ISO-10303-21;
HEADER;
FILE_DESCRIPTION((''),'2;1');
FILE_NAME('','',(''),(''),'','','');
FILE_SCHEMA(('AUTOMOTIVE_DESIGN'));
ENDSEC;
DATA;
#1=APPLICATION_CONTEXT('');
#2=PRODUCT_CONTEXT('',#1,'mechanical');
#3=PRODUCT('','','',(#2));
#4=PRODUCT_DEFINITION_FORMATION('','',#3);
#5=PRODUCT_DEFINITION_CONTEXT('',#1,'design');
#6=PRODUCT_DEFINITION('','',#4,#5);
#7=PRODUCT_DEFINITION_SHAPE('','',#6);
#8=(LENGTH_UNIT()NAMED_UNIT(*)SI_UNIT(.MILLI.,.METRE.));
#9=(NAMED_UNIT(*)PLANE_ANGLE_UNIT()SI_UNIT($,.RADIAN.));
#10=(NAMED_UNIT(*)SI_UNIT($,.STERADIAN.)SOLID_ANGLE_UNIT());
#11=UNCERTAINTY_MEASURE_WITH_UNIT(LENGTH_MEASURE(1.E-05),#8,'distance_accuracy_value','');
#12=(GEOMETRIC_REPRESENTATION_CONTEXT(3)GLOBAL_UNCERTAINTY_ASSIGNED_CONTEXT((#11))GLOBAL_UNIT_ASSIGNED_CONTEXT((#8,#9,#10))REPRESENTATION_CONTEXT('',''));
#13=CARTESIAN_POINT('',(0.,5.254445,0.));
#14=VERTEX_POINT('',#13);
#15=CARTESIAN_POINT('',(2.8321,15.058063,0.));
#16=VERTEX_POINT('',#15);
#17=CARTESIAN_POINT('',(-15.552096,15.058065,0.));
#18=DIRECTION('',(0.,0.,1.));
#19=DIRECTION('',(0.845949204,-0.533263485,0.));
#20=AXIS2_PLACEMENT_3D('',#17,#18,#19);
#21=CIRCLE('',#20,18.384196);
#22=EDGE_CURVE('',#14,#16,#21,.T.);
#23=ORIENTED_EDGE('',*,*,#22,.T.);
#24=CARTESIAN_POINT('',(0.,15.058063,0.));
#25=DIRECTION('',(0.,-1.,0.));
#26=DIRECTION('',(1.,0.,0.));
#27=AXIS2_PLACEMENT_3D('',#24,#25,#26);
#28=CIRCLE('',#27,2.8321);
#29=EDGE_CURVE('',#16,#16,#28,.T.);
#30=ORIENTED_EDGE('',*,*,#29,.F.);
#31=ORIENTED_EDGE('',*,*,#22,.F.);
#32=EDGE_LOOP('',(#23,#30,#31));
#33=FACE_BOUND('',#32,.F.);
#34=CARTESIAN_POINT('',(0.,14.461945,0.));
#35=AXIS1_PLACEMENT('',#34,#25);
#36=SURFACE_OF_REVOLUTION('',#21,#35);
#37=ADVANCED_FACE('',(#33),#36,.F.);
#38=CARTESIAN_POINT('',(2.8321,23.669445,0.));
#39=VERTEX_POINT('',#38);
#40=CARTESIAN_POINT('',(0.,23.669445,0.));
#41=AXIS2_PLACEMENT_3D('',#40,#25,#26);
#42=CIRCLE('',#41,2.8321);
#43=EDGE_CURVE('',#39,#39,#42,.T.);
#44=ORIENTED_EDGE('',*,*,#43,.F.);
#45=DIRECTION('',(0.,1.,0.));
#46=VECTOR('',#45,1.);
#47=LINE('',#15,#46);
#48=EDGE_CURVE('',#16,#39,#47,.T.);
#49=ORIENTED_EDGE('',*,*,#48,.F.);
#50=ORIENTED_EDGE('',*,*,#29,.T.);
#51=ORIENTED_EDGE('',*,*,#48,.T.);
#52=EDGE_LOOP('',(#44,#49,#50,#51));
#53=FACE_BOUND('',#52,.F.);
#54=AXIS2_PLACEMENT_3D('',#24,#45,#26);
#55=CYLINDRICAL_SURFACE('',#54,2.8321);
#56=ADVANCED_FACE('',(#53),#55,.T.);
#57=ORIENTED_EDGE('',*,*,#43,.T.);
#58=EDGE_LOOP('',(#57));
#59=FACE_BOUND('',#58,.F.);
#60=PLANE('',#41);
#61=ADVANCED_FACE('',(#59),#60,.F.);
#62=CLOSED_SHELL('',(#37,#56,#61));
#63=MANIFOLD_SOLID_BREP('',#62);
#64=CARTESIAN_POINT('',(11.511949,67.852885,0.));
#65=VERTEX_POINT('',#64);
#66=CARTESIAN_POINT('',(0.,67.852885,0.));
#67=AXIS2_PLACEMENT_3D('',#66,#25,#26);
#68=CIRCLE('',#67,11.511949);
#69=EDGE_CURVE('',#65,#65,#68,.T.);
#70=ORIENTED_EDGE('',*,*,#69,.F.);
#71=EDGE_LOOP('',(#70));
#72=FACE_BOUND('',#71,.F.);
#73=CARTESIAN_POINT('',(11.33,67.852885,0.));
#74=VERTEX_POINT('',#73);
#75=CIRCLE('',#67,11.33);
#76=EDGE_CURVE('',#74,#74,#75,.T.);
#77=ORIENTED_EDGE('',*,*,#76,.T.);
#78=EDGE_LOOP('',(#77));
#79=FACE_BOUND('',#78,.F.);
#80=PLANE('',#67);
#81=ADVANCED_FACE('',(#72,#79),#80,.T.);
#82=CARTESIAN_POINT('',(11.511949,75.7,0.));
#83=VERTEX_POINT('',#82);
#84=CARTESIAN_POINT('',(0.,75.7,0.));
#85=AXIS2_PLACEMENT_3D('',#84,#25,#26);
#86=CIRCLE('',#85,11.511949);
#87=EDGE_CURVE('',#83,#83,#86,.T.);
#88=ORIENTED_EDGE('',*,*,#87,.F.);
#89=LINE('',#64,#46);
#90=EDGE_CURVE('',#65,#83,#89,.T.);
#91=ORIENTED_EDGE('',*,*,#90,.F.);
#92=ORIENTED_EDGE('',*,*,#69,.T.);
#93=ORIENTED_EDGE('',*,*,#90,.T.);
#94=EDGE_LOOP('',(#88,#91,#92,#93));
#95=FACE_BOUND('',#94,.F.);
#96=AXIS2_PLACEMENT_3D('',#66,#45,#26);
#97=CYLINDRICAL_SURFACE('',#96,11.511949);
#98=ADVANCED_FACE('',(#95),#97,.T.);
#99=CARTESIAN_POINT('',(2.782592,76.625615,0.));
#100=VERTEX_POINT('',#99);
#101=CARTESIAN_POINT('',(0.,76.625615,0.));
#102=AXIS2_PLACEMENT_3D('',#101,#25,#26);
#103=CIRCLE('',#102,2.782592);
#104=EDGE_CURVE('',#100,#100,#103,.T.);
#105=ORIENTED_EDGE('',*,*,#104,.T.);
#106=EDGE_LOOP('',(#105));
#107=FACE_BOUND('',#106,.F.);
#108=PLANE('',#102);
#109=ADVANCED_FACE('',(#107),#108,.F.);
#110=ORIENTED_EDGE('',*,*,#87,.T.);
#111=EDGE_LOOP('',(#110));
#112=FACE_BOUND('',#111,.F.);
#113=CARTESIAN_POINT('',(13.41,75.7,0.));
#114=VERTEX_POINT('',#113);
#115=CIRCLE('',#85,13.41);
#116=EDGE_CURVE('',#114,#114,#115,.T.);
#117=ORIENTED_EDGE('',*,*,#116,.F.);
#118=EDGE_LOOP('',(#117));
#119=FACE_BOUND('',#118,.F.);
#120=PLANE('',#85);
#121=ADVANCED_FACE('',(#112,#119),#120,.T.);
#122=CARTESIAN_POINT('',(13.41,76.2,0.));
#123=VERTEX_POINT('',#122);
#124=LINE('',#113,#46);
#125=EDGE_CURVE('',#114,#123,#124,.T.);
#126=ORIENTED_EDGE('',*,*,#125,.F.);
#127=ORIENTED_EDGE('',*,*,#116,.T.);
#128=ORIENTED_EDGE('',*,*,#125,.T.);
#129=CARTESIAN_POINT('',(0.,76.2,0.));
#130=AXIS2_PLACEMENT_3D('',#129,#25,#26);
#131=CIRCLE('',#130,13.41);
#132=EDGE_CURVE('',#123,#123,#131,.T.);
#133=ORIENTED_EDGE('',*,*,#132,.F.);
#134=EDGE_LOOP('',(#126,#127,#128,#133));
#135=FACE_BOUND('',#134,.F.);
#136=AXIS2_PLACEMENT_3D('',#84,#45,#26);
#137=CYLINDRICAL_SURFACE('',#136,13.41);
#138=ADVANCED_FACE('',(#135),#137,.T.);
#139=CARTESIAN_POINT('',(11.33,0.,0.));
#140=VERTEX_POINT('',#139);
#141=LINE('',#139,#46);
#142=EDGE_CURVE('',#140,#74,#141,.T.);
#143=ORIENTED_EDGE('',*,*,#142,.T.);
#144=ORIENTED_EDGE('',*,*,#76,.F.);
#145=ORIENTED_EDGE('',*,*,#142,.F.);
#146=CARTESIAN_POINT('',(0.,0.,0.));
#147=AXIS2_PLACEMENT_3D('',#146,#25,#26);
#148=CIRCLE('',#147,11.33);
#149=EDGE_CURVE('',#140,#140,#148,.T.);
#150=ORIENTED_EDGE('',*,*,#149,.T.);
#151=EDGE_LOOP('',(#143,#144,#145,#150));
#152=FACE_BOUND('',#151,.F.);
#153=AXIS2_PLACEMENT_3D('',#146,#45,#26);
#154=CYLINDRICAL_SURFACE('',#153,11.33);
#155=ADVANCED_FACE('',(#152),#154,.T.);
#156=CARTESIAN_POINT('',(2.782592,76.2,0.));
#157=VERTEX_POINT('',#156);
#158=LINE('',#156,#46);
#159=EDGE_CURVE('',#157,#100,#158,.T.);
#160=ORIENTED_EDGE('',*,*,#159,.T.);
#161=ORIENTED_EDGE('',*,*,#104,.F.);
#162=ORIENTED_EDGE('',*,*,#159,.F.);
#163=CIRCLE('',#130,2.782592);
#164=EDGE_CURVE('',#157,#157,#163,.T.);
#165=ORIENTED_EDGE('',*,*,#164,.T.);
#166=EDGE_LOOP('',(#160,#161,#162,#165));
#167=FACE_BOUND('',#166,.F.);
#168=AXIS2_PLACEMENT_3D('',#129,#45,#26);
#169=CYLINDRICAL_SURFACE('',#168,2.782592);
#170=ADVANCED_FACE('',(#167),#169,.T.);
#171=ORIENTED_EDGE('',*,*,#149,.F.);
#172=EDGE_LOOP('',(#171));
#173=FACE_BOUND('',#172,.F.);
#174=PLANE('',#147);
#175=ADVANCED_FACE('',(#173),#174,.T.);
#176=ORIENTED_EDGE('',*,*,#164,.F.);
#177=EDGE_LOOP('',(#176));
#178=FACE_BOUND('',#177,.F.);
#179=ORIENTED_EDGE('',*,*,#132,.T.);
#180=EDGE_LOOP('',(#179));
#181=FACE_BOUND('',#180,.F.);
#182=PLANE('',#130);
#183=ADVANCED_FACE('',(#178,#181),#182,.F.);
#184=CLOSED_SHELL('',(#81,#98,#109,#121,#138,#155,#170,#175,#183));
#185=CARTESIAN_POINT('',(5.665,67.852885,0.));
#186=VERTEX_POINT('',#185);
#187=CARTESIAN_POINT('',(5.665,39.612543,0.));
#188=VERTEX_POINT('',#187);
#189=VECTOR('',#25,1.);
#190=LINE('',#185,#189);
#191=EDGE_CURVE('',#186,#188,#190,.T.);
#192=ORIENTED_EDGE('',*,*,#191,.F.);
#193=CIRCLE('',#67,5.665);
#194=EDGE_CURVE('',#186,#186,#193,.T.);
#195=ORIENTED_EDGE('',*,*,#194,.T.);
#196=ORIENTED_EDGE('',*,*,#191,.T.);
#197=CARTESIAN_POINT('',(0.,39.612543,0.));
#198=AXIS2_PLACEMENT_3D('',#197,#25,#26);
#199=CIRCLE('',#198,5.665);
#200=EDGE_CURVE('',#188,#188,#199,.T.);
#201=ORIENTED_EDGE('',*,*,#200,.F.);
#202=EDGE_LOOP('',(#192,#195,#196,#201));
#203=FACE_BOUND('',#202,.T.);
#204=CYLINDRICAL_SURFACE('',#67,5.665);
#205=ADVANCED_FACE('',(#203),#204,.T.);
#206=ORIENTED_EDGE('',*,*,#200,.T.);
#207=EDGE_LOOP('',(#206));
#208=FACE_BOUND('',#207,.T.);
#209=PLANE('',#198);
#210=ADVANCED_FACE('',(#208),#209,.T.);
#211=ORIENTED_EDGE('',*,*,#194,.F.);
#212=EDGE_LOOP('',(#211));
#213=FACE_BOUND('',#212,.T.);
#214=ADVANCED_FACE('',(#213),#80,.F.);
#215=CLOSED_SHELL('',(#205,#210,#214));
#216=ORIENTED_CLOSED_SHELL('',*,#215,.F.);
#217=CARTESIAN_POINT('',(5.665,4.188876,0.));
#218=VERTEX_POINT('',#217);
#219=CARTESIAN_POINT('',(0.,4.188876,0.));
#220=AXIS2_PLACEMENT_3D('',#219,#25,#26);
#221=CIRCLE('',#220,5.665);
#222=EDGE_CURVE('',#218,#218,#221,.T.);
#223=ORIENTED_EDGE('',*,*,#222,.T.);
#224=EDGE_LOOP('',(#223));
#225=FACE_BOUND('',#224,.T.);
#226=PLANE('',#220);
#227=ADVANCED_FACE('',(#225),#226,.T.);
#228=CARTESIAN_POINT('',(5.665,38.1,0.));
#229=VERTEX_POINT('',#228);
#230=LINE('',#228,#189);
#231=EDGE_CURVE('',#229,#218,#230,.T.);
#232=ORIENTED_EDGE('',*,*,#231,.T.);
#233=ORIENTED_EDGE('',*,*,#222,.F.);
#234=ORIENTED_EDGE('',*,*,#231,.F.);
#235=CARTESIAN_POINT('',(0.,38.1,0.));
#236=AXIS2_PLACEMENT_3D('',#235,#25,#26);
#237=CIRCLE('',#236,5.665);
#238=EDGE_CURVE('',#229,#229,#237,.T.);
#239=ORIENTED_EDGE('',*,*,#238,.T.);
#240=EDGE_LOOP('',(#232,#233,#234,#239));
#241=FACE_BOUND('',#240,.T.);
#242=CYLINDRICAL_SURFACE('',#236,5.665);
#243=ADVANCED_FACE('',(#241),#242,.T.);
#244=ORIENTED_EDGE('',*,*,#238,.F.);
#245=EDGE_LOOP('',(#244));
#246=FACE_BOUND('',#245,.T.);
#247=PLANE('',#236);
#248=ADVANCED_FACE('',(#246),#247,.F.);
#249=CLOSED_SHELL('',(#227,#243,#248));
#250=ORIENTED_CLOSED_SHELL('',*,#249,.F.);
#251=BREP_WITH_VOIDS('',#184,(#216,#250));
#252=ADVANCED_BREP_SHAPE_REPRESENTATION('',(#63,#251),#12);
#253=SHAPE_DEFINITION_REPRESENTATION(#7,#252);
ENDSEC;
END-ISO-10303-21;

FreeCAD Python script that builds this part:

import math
import FreeCAD as App
import Part
import Sketcher
from FreeCAD import Vector
Q = App.Units.Quantity


def add_polygon(sketch, points):
    """Adds a closed chain of lines whose ends are joined by coincident constraints."""
    first, n = sketch.GeometryCount, len(points)
    for a, b in zip(points, points[1:] + points[:1]):
        sketch.addGeometry(Part.LineSegment(App.Vector(*a, 0), App.Vector(*b, 0)), False)
    for i in range(n):
        sketch.addConstraint(Sketcher.Constraint("Coincident", first + i, 2, first + (i + 1) % n, 1))

doc = App.newDocument("Part")
body = doc.addObject("PartDesign::Body", "Body")

sketch1 = body.newObject("Sketcher::SketchObject", "Sketch")
sketch1.AttachmentSupport = (doc.getObject("XY_Plane"), [""])
sketch1.MapMode = "FlatFace"
sketch1.addGeometry([
    Part.LineSegment(Vector(2.8321, 23.669445, 0), Vector(0, 23.669445, 0)),
    Part.LineSegment(Vector(0, 23.669445, 0), Vector(0, 5.254445, 0)),
    Part.ArcOfCircle(Part.Circle(Vector(-15.552096, 15.058065, 0), Vector(0, 0, 1), 18.384196), math.radians(-32.226222), math.radians(-0.000007)),
    Part.LineSegment(Vector(2.8321, 15.058063, 0), Vector(2.8321, 23.669445, 0)),
], False)
sketch1.addConstraint([
    Sketcher.Constraint("Coincident", 0, 2, 1, 1),
    Sketcher.Constraint("Coincident", 1, 2, 2, 1),
    Sketcher.Constraint("Tangent", 2, 2, 3, 1),
    Sketcher.Constraint("Coincident", 3, 2, 0, 1),
    Sketcher.Constraint("Horizontal", 0),
    Sketcher.Constraint("Vertical", 1),
    Sketcher.Constraint("Vertical", 3),
    Sketcher.Constraint("PointOnObject", 0, 2, -2),
    Sketcher.Constraint("DistanceY", 1, 2, 1, 1, Q("18.415 mm")),
    Sketcher.Constraint("DistanceX", 0, 2, 0, 1, Q("2.8321 mm")),
    Sketcher.Constraint("Radius", 2, Q("18.384196 mm")),
    Sketcher.Constraint("DistanceY", -1, 1, 2, 3, Q("15.058065 mm")),
])
revolution = body.newObject("PartDesign::Revolution", "Revolution")
revolution.Profile = sketch1
revolution.ReferenceAxis = (sketch1, ["V_Axis"])
revolution.Angle = 360
body2 = doc.addObject("PartDesign::Body", "Body001")

sketch2 = body2.newObject("Sketcher::SketchObject", "Sketch001")
sketch2.AttachmentSupport = (doc.getObject("XY_Plane001"), [""])
sketch2.MapMode = "FlatFace"
add_polygon(sketch2, [(0, 4.188876), (0, 0), (11.33, 0), (11.33, 67.852885), (11.511949, 67.852885), (11.511949, 75.7), (13.41, 75.7), (13.41, 76.2), (2.782592, 76.2), (2.782592, 76.625615), (0, 76.625615), (0, 67.852885), (5.665, 67.852885), (5.665, 39.612543), (0, 39.612543), (0, 38.1), (5.665, 38.1), (5.665, 4.188876)])
sketch2.addConstraint([
    Sketcher.Constraint("Vertical", 0),
    Sketcher.Constraint("Horizontal", 1),
    Sketcher.Constraint("Vertical", 2),
    Sketcher.Constraint("Horizontal", 3),
    Sketcher.Constraint("Vertical", 4),
    Sketcher.Constraint("Horizontal", 5),
    Sketcher.Constraint("Vertical", 6),
    Sketcher.Constraint("Horizontal", 7),
    Sketcher.Constraint("Vertical", 8),
    Sketcher.Constraint("Horizontal", 9),
    Sketcher.Constraint("Vertical", 10),
    Sketcher.Constraint("Horizontal", 11),
    Sketcher.Constraint("Vertical", 12),
    Sketcher.Constraint("Horizontal", 13),
    Sketcher.Constraint("Vertical", 14),
    Sketcher.Constraint("Horizontal", 15),
    Sketcher.Constraint("Vertical", 16),
    Sketcher.Constraint("Horizontal", 17),
    Sketcher.Constraint("Coincident", 0, 2, -1, 1),
    Sketcher.Constraint("PointOnObject", 9, 2, -2),
    Sketcher.Constraint("PointOnObject", 13, 2, -2),
    Sketcher.Constraint("Horizontal", 3, 2, 10, 2),
    Sketcher.Constraint("Vertical", 12, 2, 15, 2),
    Sketcher.Constraint("DistanceY", 6, 1, 6, 2, Q("0.5 mm")),
    Sketcher.Constraint("DistanceX", 1, 1, 1, 2, Q("11.33 mm")),
    Sketcher.Constraint("DistanceY", -1, 1, 4, 2, Q("75.7 mm")),
    Sketcher.Constraint("DistanceY", -1, 1, 14, 2, Q("38.1 mm")),
    Sketcher.Constraint("DistanceX", 11, 1, 11, 2, Q("5.665 mm")),
    Sketcher.Constraint("DistanceX", -1, 1, 5, 2, Q("13.41 mm")),
    Sketcher.Constraint("DistanceX", 3, 1, 3, 2, Q("0.181949 mm")),
    Sketcher.Constraint("DistanceY", 10, 2, 10, 1, Q("8.77273 mm")),
    Sketcher.Constraint("DistanceY", 12, 2, 12, 1, Q("28.240342 mm")),
    Sketcher.Constraint("DistanceX", 7, 2, 7, 1, Q("10.627408 mm")),
    Sketcher.Constraint("DistanceY", 0, 2, 0, 1, Q("4.188876 mm")),
    Sketcher.Constraint("DistanceY", 2, 1, 2, 2, Q("67.852885 mm")),
])
revolution2 = body2.newObject("PartDesign::Revolution", "Revolution001")
revolution2.Profile = sketch2
revolution2.ReferenceAxis = (sketch2, ["V_Axis"])
revolution2.Angle = 360

doc.recompute()
